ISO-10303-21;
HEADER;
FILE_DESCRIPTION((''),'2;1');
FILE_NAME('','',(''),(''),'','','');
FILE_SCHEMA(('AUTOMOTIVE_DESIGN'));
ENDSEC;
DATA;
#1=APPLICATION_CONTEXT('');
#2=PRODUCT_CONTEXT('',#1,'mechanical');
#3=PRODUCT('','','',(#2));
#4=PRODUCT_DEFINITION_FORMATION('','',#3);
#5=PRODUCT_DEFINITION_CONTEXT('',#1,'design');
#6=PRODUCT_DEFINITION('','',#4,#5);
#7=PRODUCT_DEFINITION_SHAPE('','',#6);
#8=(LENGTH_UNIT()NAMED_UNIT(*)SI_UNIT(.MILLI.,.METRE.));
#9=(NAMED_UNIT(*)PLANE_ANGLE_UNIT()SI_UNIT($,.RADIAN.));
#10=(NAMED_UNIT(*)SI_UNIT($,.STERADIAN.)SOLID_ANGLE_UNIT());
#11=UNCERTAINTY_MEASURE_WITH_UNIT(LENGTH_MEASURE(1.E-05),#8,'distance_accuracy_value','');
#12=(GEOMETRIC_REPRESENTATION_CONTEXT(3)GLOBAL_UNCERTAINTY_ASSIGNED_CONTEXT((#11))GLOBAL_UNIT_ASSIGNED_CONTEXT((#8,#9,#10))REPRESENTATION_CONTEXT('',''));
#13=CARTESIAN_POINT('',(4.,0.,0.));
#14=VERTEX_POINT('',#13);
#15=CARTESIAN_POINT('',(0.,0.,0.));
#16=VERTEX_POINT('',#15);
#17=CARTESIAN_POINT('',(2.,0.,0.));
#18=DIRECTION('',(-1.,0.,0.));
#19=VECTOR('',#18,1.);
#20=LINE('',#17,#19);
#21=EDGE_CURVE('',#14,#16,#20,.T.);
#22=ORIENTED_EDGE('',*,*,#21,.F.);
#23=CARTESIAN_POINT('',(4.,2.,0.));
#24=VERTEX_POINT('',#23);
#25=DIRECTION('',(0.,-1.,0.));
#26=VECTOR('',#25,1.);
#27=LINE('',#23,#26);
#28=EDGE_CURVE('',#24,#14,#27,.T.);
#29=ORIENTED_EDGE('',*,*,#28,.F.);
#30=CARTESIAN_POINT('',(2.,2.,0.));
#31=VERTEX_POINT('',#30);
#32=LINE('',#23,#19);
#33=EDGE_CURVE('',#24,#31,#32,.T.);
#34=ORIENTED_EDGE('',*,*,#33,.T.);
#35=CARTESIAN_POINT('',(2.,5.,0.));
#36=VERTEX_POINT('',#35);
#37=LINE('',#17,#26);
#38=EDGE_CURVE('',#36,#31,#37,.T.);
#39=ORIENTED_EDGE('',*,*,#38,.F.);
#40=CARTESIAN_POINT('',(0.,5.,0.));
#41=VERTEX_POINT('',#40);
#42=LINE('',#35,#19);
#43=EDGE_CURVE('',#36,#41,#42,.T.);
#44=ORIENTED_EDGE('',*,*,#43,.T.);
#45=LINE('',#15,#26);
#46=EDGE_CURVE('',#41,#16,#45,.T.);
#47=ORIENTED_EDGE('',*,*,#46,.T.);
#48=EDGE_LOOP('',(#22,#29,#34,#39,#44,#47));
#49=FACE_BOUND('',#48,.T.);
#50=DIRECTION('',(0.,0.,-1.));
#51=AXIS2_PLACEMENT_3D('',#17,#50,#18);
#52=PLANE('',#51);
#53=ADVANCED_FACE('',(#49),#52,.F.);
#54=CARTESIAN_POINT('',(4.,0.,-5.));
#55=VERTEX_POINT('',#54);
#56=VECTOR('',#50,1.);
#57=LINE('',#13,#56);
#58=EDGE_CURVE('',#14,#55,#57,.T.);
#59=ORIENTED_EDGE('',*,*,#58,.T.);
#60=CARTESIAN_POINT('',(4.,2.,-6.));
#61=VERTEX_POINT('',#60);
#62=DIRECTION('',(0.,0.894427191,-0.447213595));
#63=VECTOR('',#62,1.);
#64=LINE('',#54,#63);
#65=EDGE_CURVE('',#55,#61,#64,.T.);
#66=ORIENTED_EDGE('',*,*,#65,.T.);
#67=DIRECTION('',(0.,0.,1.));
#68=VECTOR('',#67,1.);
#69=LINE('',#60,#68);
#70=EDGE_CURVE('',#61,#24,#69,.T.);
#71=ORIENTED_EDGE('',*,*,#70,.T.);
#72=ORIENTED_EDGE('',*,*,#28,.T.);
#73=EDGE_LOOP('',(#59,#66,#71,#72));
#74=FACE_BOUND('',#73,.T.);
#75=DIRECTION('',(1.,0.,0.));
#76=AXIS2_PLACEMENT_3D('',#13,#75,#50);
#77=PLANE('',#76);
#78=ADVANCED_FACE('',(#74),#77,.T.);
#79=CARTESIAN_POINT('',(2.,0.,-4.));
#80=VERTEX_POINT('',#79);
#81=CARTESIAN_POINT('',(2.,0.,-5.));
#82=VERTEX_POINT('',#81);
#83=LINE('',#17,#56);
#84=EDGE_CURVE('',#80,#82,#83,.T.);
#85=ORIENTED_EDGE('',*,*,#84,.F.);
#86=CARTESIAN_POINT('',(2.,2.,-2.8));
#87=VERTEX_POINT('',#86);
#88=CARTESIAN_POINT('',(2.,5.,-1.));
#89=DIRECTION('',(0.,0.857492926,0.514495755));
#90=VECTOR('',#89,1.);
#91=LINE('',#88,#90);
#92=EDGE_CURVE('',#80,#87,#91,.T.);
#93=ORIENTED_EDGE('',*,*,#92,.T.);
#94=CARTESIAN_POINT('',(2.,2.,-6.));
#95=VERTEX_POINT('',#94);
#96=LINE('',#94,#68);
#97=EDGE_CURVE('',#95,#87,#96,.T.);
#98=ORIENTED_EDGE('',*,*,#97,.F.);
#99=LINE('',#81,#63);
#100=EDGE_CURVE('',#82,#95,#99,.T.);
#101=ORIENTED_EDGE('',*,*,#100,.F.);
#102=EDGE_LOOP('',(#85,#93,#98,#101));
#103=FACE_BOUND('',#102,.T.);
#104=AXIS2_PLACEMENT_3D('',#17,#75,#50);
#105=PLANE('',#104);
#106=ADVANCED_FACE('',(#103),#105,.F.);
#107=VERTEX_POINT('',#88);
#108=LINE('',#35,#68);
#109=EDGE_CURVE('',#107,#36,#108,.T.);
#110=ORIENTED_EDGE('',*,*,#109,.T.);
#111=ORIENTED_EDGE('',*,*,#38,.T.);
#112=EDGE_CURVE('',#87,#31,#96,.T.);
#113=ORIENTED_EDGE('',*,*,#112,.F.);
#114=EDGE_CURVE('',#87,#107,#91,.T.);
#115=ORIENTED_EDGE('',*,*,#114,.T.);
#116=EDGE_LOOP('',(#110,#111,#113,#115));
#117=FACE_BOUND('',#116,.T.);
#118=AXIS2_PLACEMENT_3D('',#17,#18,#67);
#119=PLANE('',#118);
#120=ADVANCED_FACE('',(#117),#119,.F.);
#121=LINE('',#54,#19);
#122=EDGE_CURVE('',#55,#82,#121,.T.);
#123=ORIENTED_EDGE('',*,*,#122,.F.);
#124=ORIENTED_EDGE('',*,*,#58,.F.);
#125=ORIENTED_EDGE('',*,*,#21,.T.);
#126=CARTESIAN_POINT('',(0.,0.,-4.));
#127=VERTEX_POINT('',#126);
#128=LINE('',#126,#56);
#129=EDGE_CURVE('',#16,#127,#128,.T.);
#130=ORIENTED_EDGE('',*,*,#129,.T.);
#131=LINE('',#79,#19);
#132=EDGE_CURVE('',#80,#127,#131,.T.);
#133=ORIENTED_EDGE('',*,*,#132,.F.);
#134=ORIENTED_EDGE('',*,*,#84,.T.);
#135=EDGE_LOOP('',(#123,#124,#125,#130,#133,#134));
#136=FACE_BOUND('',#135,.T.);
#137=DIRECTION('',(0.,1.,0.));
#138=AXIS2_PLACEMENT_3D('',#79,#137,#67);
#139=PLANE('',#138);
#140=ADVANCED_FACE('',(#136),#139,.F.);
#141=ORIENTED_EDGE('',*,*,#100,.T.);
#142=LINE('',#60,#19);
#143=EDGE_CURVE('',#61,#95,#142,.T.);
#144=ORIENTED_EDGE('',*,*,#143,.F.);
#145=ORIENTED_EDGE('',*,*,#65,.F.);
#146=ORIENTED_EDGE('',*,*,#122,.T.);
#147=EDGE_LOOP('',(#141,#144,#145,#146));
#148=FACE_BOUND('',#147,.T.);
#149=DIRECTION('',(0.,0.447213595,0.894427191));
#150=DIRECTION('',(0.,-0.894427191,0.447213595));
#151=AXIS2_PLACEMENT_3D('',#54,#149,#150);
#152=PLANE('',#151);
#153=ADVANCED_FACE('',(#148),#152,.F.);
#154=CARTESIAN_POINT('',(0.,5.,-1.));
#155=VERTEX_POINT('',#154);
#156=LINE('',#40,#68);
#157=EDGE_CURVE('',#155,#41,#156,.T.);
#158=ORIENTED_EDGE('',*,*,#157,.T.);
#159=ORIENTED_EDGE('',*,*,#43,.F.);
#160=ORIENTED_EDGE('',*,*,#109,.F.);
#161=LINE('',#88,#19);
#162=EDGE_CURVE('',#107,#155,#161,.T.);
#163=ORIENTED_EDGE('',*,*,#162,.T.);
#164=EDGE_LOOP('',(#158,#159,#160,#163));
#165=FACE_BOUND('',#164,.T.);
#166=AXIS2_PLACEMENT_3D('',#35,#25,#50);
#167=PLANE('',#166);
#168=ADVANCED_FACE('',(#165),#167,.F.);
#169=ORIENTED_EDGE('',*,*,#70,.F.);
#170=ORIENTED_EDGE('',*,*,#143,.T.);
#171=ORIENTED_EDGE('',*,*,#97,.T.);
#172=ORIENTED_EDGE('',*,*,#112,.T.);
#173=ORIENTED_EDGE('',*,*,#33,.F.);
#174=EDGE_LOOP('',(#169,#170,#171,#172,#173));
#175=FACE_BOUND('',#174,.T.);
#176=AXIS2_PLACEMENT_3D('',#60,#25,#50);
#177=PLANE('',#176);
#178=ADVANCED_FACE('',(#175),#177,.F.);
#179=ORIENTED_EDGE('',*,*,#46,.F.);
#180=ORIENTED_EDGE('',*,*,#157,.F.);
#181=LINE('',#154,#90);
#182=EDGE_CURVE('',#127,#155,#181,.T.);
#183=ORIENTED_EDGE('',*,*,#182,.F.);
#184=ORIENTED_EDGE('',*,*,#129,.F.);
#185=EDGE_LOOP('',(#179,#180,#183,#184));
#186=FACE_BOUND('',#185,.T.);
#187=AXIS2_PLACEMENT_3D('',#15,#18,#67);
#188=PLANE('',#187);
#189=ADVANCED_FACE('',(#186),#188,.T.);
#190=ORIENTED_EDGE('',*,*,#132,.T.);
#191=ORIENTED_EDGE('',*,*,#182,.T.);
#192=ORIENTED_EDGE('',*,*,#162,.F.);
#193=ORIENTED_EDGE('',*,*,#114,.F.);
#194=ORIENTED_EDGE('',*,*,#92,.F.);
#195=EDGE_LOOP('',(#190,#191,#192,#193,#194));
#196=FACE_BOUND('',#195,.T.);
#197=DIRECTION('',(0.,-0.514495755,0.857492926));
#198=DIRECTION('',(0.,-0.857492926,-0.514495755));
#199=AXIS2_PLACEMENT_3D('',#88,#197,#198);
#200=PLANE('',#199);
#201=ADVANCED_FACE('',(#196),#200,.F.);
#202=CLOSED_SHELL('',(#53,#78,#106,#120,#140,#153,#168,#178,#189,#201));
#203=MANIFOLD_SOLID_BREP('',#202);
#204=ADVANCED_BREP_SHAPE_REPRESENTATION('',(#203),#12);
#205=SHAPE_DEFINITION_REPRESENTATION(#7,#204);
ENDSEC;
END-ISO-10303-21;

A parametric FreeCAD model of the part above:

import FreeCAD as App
import Part
import Sketcher
Q = App.Units.Quantity


def add_polygon(sketch, points):
    """Adds a closed chain of lines whose ends are joined by coincident constraints."""
    first, n = sketch.GeometryCount, len(points)
    for a, b in zip(points, points[1:] + points[:1]):
        sketch.addGeometry(Part.LineSegment(App.Vector(*a, 0), App.Vector(*b, 0)), False)
    for i in range(n):
        sketch.addConstraint(Sketcher.Constraint("Coincident", first + i, 2, first + (i + 1) % n, 1))

doc = App.newDocument("Part")
body = doc.addObject("PartDesign::Body", "Body")

sketch1 = body.newObject("Sketcher::SketchObject", "Sketch")
sketch1.AttachmentSupport = (doc.getObject("YZ_Plane"), [""])
sketch1.MapMode = "FlatFace"
add_polygon(sketch1, [(5, 0), (0, 0), (0, -4), (5, -1)])
sketch1.addConstraint([
    Sketcher.Constraint("Horizontal", 0),
    Sketcher.Constraint("Vertical", 1),
    Sketcher.Constraint("Vertical", 3),
    Sketcher.Constraint("Coincident", 0, 2, -1, 1),
    Sketcher.Constraint("DistanceX", 0, 2, 0, 1, Q("5 mm")),
    Sketcher.Constraint("DistanceY", 1, 2, 1, 1, Q("4 mm")),
    Sketcher.Constraint("DistanceY", 3, 1, 3, 2, Q("1 mm")),
])
pad1 = body.newObject("PartDesign::Pad", "Pad")
pad1.Profile = sketch1
pad1.Length = 2

sketch2 = body.newObject("Sketcher::SketchObject", "Sketch001")
sketch2.AttachmentSupport = (doc.getObject("YZ_Plane"), [""])
sketch2.MapMode = "FlatFace"
sketch2.AttachmentOffset = App.Placement(App.Vector(0, 0, 2), App.Rotation())
add_polygon(sketch2, [(0, 0), (0, -5), (2, -6), (2, 0)])
sketch2.addConstraint([
    Sketcher.Constraint("Vertical", 0),
    Sketcher.Constraint("Vertical", 2),
    Sketcher.Constraint("Horizontal", 3),
    Sketcher.Constraint("Coincident", 3, 2, -1, 1),
    Sketcher.Constraint("DistanceX", 3, 2, 3, 1, Q("2 mm")),
    Sketcher.Constraint("DistanceY", 0, 2, 0, 1, Q("5 mm")),
    Sketcher.Constraint("DistanceY", 2, 1, 2, 2, Q("6 mm")),
])
pad2 = body.newObject("PartDesign::Pad", "Pad001")
pad2.Profile = sketch2
pad2.Length = 2

doc.recompute()
